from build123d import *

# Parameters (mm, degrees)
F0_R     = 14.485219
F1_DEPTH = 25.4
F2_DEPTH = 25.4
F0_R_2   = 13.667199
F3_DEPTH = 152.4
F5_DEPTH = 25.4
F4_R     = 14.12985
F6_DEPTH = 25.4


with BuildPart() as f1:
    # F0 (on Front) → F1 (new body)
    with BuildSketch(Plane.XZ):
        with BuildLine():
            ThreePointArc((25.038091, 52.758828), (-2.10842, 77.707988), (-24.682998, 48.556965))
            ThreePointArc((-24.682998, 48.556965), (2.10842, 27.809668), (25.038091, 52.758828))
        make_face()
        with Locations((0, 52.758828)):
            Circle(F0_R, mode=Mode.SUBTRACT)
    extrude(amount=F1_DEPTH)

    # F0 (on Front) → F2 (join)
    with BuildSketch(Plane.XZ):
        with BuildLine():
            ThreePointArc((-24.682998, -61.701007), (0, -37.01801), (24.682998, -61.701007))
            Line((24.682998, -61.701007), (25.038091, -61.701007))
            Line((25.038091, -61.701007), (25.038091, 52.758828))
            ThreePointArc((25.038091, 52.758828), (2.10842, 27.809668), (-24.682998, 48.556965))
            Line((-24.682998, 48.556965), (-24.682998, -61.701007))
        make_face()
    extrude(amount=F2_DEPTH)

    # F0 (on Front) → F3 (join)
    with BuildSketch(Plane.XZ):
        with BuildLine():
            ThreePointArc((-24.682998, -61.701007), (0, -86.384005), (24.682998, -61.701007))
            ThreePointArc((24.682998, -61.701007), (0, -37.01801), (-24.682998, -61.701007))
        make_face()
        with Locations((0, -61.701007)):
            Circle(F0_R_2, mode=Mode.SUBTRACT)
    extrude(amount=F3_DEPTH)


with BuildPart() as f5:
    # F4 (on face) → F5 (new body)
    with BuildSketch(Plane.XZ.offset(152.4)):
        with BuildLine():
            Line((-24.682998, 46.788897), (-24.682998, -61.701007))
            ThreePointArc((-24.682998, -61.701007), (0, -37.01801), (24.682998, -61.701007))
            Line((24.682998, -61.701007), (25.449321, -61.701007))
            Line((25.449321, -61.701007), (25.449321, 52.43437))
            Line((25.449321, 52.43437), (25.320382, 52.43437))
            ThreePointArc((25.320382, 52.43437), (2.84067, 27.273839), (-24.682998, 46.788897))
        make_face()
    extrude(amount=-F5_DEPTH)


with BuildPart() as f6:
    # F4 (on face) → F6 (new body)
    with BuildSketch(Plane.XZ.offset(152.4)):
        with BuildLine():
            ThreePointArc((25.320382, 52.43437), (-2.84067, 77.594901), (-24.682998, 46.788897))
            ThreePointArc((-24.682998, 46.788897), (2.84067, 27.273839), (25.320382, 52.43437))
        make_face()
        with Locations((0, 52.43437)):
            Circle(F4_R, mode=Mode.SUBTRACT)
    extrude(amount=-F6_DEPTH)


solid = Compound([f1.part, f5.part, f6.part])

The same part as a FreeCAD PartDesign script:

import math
import FreeCAD as App
import Part
import Sketcher
from FreeCAD import Vector
Q = App.Units.Quantity

doc = App.newDocument("Part")
body = doc.addObject("PartDesign::Body", "Body")

sketch1 = body.newObject("Sketcher::SketchObject", "Sketch")
sketch1.AttachmentSupport = (doc.getObject("XZ_Plane"), [""])
sketch1.MapMode = "FlatFace"
sketch1.addGeometry([
    Part.ArcOfCircle(Part.Circle(Vector(0, 53, 0), Vector(0, 0, 1), 25), math.radians(0), math.radians(190)),
    Part.ArcOfCircle(Part.Circle(Vector(0, 53, 0), Vector(0, 0, 1), 25), math.radians(-170), math.radians(0)),
    Part.Circle(Vector(0, 53, 0), Vector(0, 0, 1), 14),
], False)
sketch1.addConstraint([
    Sketcher.Constraint("Tangent", 0, 1, 1, 2),
    Sketcher.Constraint("Coincident", 1, 1, 0, 2),
    Sketcher.Constraint("Coincident", 2, 3, 0, 3),
    Sketcher.Constraint("PointOnObject", 0, 3, -2),
    Sketcher.Constraint("Horizontal", 2, 3, 0, 1),
    Sketcher.Constraint("Diameter", 2, Q("28.970438 mm")),
    Sketcher.Constraint("Radius", 0, Q("25.038091 mm")),
    Sketcher.Constraint("DistanceX", 1, 1, -1, 1, Q("24.682998 mm")),
    Sketcher.Constraint("DistanceY", -1, 1, 1, 3, Q("52.758828 mm")),
])
pad1 = body.newObject("PartDesign::Pad", "Pad")
pad1.Profile = sketch1
pad1.Length = Q("1 in")

sketch2 = body.newObject("Sketcher::SketchObject", "Sketch001")
sketch2.AttachmentSupport = (doc.getObject("XZ_Plane"), [""])
sketch2.MapMode = "FlatFace"
sketch2.addGeometry([
    Part.ArcOfCircle(Part.Circle(Vector(0, -61.7, 0), Vector(0, 0, 1), 24.68), math.radians(0), math.radians(180)),
    Part.LineSegment(Vector(24.68, -61.7, 0), Vector(25.04, -61.7, 0)),
    Part.LineSegment(Vector(25.04, -61.7, 0), Vector(25.04, 52.76, 0)),
    Part.ArcOfCircle(Part.Circle(Vector(0, 52.76, 0), Vector(0, 0, 1), 25.04), math.radians(-170), math.radians(0)),
    Part.LineSegment(Vector(-24.68, 48.56, 0), Vector(-24.68, -61.7, 0)),
], False)
sketch2.addConstraint([
    Sketcher.Constraint("Coincident", 0, 1, 1, 1),
    Sketcher.Constraint("Coincident", 1, 2, 2, 1),
    Sketcher.Constraint("Tangent", 2, 2, 3, 2),
    Sketcher.Constraint("Coincident", 3, 1, 4, 1),
    Sketcher.Constraint("Tangent", 4, 2, 0, 2),
    Sketcher.Constraint("Horizontal", 1),
    Sketcher.Constraint("Vertical", 2),
    Sketcher.Constraint("Vertical", 4),
    Sketcher.Constraint("Symmetric", 0, 1, 4, 2, -2),
    Sketcher.Constraint("PointOnObject", 3, 3, -2),
    Sketcher.Constraint("Radius", 0, Q("24.682998 mm")),
    Sketcher.Constraint("Radius", 3, Q("25.038091 mm")),
    Sketcher.Constraint("DistanceY", 4, 2, 4, 1, Q("110.257972 mm")),
    Sketcher.Constraint("DistanceY", 0, 3, -1, 1, Q("61.701008 mm")),
])
pad2 = body.newObject("PartDesign::Pad", "Pad001")
pad2.Profile = sketch2
pad2.Length = Q("1 in")

sketch3 = body.newObject("Sketcher::SketchObject", "Sketch002")
sketch3.AttachmentSupport = (doc.getObject("XZ_Plane"), [""])
sketch3.MapMode = "FlatFace"
sketch3.addGeometry([
    Part.ArcOfCircle(Part.Circle(Vector(0, -62, 0), Vector(0, 0, 1), 25), math.radians(180), math.radians(360)),
    Part.ArcOfCircle(Part.Circle(Vector(0, -62, 0), Vector(0, 0, 1), 25), math.radians(0), math.radians(180)),
    Part.Circle(Vector(0, -62, 0), Vector(0, 0, 1), 14),
], False)
sketch3.addConstraint([
    Sketcher.Constraint("Tangent", 0, 1, 1, 2),
    Sketcher.Constraint("Coincident", 1, 1, 0, 2),
    Sketcher.Constraint("Coincident", 2, 3, 0, 3),
    Sketcher.Constraint("Symmetric", 0, 1, 1, 1, -2),
    Sketcher.Constraint("Horizontal", 2, 3, 0, 1),
    Sketcher.Constraint("Diameter", 2, Q("27.334398 mm")),
    Sketcher.Constraint("Radius", 0, Q("24.682998 mm")),
    Sketcher.Constraint("DistanceY", 1, 3, -1, 1, Q("61.701008 mm")),
])
pad3 = body.newObject("PartDesign::Pad", "Pad002")
pad3.Profile = sketch3
pad3.Length = Q("6 in")
body2 = doc.addObject("PartDesign::Body", "Body001")

sketch4 = body2.newObject("Sketcher::SketchObject", "Sketch003")
sketch4.AttachmentSupport = (doc.getObject("XZ_Plane001"), [""])
sketch4.MapMode = "FlatFace"
sketch4.AttachmentOffset = App.Placement(Vector(0, 0, 6 * 25.4), App.Rotation())
sketch4.addGeometry([
    Part.LineSegment(Vector(-24.68, 46.79, 0), Vector(-24.68, -61.7, 0)),
    Part.ArcOfCircle(Part.Circle(Vector(0, -61.7, 0), Vector(0, 0, 1), 24.68), math.radians(0), math.radians(180)),
    Part.LineSegment(Vector(24.68, -61.7, 0), Vector(25.45, -61.7, 0)),
    Part.LineSegment(Vector(25.45, -61.7, 0), Vector(25.45, 52.43, 0)),
    Part.LineSegment(Vector(25.45, 52.43, 0), Vector(25.32, 52.43, 0)),
    Part.ArcOfCircle(Part.Circle(Vector(0, 52.43, 0), Vector(0, 0, 1), 25.32), math.radians(-167), math.radians(0)),
], False)
sketch4.addConstraint([
    Sketcher.Constraint("Tangent", 0, 2, 1, 2),
    Sketcher.Constraint("Coincident", 1, 1, 2, 1),
    Sketcher.Constraint("Coincident", 2, 2, 3, 1),
    Sketcher.Constraint("Coincident", 3, 2, 4, 1),
    Sketcher.Constraint("Coincident", 4, 2, 5, 2),
    Sketcher.Constraint("Coincident", 5, 1, 0, 1),
    Sketcher.Constraint("Vertical", 0),
    Sketcher.Constraint("Horizontal", 2),
    Sketcher.Constraint("Vertical", 3),
    Sketcher.Constraint("Horizontal", 4),
    Sketcher.Constraint("Symmetric", 0, 2, 1, 1, -2),
    Sketcher.Constraint("PointOnObject", 5, 3, -2),
    Sketcher.Constraint("Horizontal", 5, 3, 3, 2),
    Sketcher.Constraint("Radius", 1, Q("24.682998 mm")),
    Sketcher.Constraint("Radius", 5, Q("25.320382 mm")),
    Sketcher.Constraint("DistanceX", 4, 2, 4, 1, Q("0.128939 mm")),
    Sketcher.Constraint("DistanceY", 0, 2, 0, 1, Q("108.489904 mm")),
    Sketcher.Constraint("DistanceY", 1, 3, -1, 1, Q("61.701008 mm")),
])
pad4 = body2.newObject("PartDesign::Pad", "Pad003")
pad4.Profile = sketch4
pad4.Length = Q("1 in")
pad4.Reversed = True
body3 = doc.addObject("PartDesign::Body", "Body002")

sketch5 = body3.newObject("Sketcher::SketchObject", "Sketch004")
sketch5.AttachmentSupport = (doc.getObject("XZ_Plane002"), [""])
sketch5.MapMode = "FlatFace"
sketch5.AttachmentOffset = App.Placement(Vector(0, 0, 6 * 25.4), App.Rotation())
sketch5.addGeometry([
    Part.ArcOfCircle(Part.Circle(Vector(0, 52, 0), Vector(0, 0, 1), 25), math.radians(0), math.radians(193)),
    Part.ArcOfCircle(Part.Circle(Vector(0, 52, 0), Vector(0, 0, 1), 25), math.radians(-167), math.radians(0)),
    Part.Circle(Vector(0, 52, 0), Vector(0, 0, 1), 14),
], False)
sketch5.addConstraint([
    Sketcher.Constraint("Tangent", 0, 1, 1, 2),
    Sketcher.Constraint("Coincident", 1, 1, 0, 2),
    Sketcher.Constraint("Coincident", 2, 3, 0, 3),
    Sketcher.Constraint("PointOnObject", 0, 3, -2),
    Sketcher.Constraint("Horizontal", 2, 3, 0, 1),
    Sketcher.Constraint("Diameter", 2, Q("28.2597 mm")),
    Sketcher.Constraint("Radius", 0, Q("25.320382 mm")),
    Sketcher.Constraint("DistanceX", 1, 1, -1, 1, Q("24.682998 mm")),
    Sketcher.Constraint("DistanceY", -1, 1, 0, 3, Q("52.43437 mm")),
])
pad5 = body3.newObject("PartDesign::Pad", "Pad004")
pad5.Profile = sketch5
pad5.Length = Q("1 in")
pad5.Reversed = True

doc.recompute()
